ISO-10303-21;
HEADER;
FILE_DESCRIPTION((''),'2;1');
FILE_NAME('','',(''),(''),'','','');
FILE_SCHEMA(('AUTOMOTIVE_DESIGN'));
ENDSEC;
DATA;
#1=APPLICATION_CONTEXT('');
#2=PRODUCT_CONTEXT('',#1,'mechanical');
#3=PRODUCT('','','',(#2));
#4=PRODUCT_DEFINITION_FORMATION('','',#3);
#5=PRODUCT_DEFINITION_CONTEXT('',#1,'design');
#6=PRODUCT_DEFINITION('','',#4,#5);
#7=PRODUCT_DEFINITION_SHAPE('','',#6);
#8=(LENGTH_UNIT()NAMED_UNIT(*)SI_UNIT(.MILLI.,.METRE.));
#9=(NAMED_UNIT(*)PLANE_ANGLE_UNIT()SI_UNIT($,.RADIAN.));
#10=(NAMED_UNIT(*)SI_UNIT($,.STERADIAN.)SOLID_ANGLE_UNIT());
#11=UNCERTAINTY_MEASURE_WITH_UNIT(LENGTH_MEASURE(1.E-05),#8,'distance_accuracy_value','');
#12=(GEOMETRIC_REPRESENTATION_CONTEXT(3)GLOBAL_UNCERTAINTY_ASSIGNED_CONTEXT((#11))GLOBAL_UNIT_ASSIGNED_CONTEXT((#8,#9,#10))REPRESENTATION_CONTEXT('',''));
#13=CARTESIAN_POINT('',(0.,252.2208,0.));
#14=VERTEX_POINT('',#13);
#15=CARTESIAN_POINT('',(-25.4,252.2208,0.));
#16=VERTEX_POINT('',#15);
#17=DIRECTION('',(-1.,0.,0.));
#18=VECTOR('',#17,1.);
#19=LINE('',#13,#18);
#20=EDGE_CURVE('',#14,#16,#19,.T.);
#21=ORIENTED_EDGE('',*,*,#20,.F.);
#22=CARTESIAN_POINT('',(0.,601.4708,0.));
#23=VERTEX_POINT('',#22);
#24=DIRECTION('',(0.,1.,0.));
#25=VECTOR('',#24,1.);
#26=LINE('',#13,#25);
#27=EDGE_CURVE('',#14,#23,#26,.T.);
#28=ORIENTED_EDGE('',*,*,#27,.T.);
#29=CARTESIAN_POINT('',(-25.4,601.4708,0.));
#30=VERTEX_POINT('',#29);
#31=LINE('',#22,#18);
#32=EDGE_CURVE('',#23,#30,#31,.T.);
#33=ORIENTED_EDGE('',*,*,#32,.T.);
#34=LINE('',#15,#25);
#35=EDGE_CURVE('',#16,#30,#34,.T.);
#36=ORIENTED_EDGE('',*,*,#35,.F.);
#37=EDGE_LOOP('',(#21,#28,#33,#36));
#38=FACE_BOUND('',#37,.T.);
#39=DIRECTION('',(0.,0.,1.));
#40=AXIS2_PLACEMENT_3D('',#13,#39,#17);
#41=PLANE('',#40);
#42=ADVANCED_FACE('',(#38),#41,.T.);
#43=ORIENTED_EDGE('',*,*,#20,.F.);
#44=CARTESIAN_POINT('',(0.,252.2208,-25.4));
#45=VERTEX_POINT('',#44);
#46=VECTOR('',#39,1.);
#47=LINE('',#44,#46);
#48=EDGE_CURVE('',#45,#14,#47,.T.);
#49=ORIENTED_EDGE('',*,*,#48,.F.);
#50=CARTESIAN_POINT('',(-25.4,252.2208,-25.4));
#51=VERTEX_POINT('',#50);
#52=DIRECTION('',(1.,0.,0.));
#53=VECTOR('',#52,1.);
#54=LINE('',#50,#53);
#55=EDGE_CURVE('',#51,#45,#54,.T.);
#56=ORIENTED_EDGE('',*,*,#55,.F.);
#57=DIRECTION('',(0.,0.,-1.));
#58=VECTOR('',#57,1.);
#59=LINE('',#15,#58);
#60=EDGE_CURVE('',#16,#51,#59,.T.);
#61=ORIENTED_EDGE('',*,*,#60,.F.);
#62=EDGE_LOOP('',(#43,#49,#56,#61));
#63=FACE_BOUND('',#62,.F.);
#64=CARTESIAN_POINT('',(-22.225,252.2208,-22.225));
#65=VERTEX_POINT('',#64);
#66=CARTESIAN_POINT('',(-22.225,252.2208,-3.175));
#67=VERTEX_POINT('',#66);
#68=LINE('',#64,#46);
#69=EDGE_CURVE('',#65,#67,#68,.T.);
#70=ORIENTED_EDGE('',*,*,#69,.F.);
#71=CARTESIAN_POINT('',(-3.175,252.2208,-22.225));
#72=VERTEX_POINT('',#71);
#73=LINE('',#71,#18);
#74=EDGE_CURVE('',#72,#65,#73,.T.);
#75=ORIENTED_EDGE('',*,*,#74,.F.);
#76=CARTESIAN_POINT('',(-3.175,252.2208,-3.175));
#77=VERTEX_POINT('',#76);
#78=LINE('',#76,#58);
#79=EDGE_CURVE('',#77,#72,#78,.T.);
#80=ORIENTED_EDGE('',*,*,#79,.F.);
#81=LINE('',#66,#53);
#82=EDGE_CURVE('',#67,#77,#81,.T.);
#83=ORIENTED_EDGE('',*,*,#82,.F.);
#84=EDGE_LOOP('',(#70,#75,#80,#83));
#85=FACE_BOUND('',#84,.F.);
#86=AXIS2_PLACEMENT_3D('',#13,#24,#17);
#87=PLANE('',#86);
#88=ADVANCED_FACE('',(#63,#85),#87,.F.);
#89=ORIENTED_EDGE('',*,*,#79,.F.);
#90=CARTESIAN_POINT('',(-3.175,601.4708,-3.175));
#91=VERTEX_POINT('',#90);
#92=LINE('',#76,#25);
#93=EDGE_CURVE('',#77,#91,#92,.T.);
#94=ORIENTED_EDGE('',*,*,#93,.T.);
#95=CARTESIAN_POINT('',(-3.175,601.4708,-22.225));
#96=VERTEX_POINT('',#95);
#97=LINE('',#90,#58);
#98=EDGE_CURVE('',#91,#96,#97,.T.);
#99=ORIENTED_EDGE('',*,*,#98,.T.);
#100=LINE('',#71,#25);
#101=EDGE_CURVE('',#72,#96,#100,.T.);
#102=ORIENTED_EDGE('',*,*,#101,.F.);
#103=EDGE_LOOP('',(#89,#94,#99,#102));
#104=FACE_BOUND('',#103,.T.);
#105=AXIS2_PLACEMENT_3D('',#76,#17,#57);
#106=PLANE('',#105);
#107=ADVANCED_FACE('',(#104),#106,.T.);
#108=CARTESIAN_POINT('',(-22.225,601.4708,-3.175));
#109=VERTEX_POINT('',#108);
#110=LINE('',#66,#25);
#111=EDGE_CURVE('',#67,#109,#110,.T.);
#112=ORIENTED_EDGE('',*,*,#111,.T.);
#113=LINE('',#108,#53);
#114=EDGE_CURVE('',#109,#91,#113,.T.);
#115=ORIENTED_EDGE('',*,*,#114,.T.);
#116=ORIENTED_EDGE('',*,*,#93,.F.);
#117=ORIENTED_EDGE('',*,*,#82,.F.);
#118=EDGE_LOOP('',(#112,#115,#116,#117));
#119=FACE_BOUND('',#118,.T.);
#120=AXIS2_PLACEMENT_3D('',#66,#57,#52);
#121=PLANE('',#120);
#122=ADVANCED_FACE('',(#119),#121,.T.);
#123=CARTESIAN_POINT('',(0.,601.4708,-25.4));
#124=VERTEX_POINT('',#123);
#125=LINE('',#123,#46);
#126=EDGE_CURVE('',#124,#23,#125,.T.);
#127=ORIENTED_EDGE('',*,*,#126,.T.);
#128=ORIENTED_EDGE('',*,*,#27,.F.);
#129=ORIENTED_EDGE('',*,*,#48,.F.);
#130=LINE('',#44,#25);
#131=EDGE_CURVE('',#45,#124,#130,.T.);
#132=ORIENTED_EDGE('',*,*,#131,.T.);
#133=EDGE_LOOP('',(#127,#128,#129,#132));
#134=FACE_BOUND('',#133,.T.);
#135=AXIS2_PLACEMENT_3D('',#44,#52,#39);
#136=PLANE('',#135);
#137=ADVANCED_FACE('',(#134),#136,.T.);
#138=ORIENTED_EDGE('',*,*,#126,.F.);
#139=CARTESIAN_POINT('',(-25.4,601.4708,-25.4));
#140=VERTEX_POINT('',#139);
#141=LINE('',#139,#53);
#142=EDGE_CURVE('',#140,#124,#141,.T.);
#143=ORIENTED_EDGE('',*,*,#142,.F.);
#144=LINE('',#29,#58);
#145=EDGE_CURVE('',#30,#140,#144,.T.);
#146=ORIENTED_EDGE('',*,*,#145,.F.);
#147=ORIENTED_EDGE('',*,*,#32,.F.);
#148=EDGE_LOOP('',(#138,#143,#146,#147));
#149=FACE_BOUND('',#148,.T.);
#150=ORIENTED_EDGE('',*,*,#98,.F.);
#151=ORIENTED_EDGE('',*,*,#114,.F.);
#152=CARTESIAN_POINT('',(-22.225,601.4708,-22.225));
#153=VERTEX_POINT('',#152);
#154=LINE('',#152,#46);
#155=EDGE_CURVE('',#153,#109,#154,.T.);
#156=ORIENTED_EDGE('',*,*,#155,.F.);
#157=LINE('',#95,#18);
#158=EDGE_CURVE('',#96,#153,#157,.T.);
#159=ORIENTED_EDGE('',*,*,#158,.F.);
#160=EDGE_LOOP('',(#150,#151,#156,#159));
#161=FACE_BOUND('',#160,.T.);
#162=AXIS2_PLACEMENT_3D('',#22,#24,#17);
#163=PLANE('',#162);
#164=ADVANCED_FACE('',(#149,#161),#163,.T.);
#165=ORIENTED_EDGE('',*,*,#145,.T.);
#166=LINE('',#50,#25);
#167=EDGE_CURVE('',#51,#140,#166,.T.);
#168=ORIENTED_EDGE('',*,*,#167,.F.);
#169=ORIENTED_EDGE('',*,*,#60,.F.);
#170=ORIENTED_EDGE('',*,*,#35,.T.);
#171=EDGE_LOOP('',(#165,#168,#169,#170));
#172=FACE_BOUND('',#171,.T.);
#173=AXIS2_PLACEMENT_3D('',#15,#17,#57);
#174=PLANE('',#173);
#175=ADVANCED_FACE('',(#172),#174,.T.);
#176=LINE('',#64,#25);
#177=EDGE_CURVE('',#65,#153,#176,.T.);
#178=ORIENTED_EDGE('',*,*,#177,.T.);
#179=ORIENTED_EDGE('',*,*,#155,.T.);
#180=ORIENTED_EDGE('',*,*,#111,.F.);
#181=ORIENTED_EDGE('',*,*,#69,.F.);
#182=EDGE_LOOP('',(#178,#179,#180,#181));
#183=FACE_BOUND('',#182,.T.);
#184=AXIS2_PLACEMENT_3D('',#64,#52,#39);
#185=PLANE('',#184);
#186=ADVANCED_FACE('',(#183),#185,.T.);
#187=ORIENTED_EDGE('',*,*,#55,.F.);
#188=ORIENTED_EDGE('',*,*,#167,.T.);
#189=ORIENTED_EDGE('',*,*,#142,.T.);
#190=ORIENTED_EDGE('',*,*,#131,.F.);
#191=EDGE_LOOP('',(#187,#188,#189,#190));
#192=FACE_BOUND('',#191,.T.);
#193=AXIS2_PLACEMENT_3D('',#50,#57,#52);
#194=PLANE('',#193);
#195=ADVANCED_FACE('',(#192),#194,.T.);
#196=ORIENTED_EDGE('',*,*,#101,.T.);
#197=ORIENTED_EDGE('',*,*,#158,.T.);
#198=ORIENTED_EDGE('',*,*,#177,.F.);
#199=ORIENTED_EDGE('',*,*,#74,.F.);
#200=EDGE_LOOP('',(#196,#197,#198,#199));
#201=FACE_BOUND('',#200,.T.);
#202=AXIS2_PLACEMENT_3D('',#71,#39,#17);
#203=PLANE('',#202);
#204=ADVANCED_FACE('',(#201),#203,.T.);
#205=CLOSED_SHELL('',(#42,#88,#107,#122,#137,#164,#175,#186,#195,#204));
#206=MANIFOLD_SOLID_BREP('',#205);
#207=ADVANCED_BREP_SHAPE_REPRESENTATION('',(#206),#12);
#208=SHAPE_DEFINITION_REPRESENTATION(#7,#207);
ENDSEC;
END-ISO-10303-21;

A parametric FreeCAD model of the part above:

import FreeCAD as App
import Part
import Sketcher
Q = App.Units.Quantity

doc = App.newDocument("Part")
params = doc.addObject("Spreadsheet::Sheet", "Params")
for row, (alias, value) in enumerate([
    ("sketch1_width", "1 in"),
    ("pad1_length", "13.75 in"),
], start=1):
    params.set(f"A{row}", alias)
    params.set(f"B{row}", "=" + value)
    params.setAlias(f"B{row}", alias)

body = doc.addObject("PartDesign::Body", "Body")

sketch1 = body.newObject("Sketcher::SketchObject", "Sketch")
sketch1.AttachmentSupport = (doc.getObject("XZ_Plane"), [""])
sketch1.MapMode = "FlatFace"
sketch1.AttachmentOffset = App.Placement(App.Vector(0, 0, -252.2208), App.Rotation())
sketch1.addGeometry(Part.LineSegment(App.Vector(-25, 0, 0), App.Vector(0, 0, 0)), False)
sketch1.addGeometry(Part.LineSegment(App.Vector(0, 0, 0), App.Vector(0, -25, 0)), False)
sketch1.addGeometry(Part.LineSegment(App.Vector(0, -25, 0), App.Vector(-25, -25, 0)), False)
sketch1.addGeometry(Part.LineSegment(App.Vector(-25, -25, 0), App.Vector(-25, 0, 0)), False)
sketch1.addGeometry(Part.LineSegment(App.Vector(-22, -3, 0), App.Vector(-22, -22, 0)), False)
sketch1.addGeometry(Part.LineSegment(App.Vector(-22, -22, 0), App.Vector(-3, -22, 0)), False)
sketch1.addGeometry(Part.LineSegment(App.Vector(-3, -22, 0), App.Vector(-3, -3, 0)), False)
sketch1.addGeometry(Part.LineSegment(App.Vector(-3, -3, 0), App.Vector(-22, -3, 0)), False)
sketch1.addConstraint(Sketcher.Constraint("Coincident", 0, 2, 1, 1))
sketch1.addConstraint(Sketcher.Constraint("Coincident", 1, 2, 2, 1))
sketch1.addConstraint(Sketcher.Constraint("Coincident", 2, 2, 3, 1))
sketch1.addConstraint(Sketcher.Constraint("Coincident", 3, 2, 0, 1))
sketch1.addConstraint(Sketcher.Constraint("Coincident", 4, 2, 5, 1))
sketch1.addConstraint(Sketcher.Constraint("Coincident", 5, 2, 6, 1))
sketch1.addConstraint(Sketcher.Constraint("Coincident", 6, 2, 7, 1))
sketch1.addConstraint(Sketcher.Constraint("Coincident", 7, 2, 4, 1))
sketch1.addConstraint(Sketcher.Constraint("Horizontal", 0))
sketch1.addConstraint(Sketcher.Constraint("Vertical", 1))
sketch1.addConstraint(Sketcher.Constraint("Horizontal", 2))
sketch1.addConstraint(Sketcher.Constraint("Vertical", 3))
sketch1.addConstraint(Sketcher.Constraint("Vertical", 4))
sketch1.addConstraint(Sketcher.Constraint("Horizontal", 5))
sketch1.addConstraint(Sketcher.Constraint("Vertical", 6))
sketch1.addConstraint(Sketcher.Constraint("Horizontal", 7))
sketch1.addConstraint(Sketcher.Constraint("Coincident", 0, 2, -1, 1))
sketch1.addConstraint(Sketcher.Constraint("Equal", 2, 1))
sketch1.addConstraint(Sketcher.Constraint("Equal", 7, 4))
sketch1.addConstraint(Sketcher.Constraint("DistanceX", 0, 1, 0, 2, Q("1 in")))
sketch1.addConstraint(Sketcher.Constraint("DistanceX", 5, 2, -1, 1, Q("0.125 in")))
sketch1.addConstraint(Sketcher.Constraint("DistanceY", 6, 2, -1, 1, Q("0.125 in")))
sketch1.addConstraint(Sketcher.Constraint("DistanceX", 2, 2, 4, 2, Q("0.125 in")))
sketch1.setExpression("Constraints[19]", "Params.sketch1_width")
pad1 = body.newObject("PartDesign::Pad", "Pad")
pad1.Profile = sketch1
pad1.setExpression("Length", "Params.pad1_length")
pad1.Reversed = True

doc.recompute()
